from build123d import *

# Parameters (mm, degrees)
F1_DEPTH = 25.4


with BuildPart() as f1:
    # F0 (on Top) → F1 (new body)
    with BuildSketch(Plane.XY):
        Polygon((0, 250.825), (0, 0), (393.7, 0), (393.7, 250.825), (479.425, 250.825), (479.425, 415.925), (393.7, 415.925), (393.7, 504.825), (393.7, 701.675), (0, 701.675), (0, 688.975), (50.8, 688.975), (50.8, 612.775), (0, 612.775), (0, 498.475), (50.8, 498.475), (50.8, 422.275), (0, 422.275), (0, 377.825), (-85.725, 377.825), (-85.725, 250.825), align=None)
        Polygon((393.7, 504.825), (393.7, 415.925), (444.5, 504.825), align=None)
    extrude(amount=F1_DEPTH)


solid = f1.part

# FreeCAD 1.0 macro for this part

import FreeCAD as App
import Part
import Sketcher
from FreeCAD import Vector
Q = App.Units.Quantity


def add_polygon(sketch, points):
    """Adds a closed chain of lines whose ends are joined by coincident constraints."""
    first, n = sketch.GeometryCount, len(points)
    for a, b in zip(points, points[1:] + points[:1]):
        sketch.addGeometry(Part.LineSegment(App.Vector(*a, 0), App.Vector(*b, 0)), False)
    for i in range(n):
        sketch.addConstraint(Sketcher.Constraint("Coincident", first + i, 2, first + (i + 1) % n, 1))

doc = App.newDocument("Part")
params = doc.addObject("Spreadsheet::Sheet", "Params")
for row, (alias, value) in enumerate([
    ("sketch1_width", "2 in"),
    ("sketch1_height", "3 in"),
    ("sketch1_height2", "5 in"),
    ("sketch1_width2", "15.5 in"),
    ("sketch1_height3", "6.5 in"),
    ("pad1_length", "1 in"),
], start=1):
    params.set(f"A{row}", alias)
    params.set(f"B{row}", "=" + value)
    params.setAlias(f"B{row}", alias)

body = doc.addObject("PartDesign::Body", "Body")

# Sketch on XY plane
sketch1 = body.newObject("Sketcher::SketchObject", "Sketch")
sketch1.AttachmentSupport = (doc.getObject("XY_Plane"), [""])
sketch1.MapMode = "FlatFace"
add_polygon(sketch1, [(0, 251), (0, 0), (394, 0), (394, 251), (479, 251), (479, 416), (394, 416), (444, 505), (394, 505), (394, 702), (0, 702), (0, 689), (51, 689), (51, 613), (0, 613), (0, 498), (51, 498), (51, 422), (0, 422), (0, 378), (-86, 378), (-86, 251)])  # lines 0-21
sketch1.addConstraint([
    Sketcher.Constraint("Vertical", 0),
    Sketcher.Constraint("Horizontal", 1),
    Sketcher.Constraint("Vertical", 2),
    Sketcher.Constraint("Horizontal", 3),
    Sketcher.Constraint("Vertical", 4),
    Sketcher.Constraint("Horizontal", 5),
    Sketcher.Constraint("Horizontal", 7),
    Sketcher.Constraint("Vertical", 8),
    Sketcher.Constraint("Horizontal", 9),
    Sketcher.Constraint("Vertical", 10),
    Sketcher.Constraint("Horizontal", 11),
    Sketcher.Constraint("Vertical", 12),
    Sketcher.Constraint("Horizontal", 13),
    Sketcher.Constraint("Vertical", 14),
    Sketcher.Constraint("Horizontal", 15),
    Sketcher.Constraint("Vertical", 16),
    Sketcher.Constraint("Horizontal", 17),
    Sketcher.Constraint("Vertical", 18),
    Sketcher.Constraint("Horizontal", 19),
    Sketcher.Constraint("Vertical", 20),
    Sketcher.Constraint("Horizontal", 21),
    Sketcher.Constraint("Coincident", 0, 2, -1, 1),
    Sketcher.Constraint("PointOnObject", 9, 2, -2),
    Sketcher.Constraint("PointOnObject", 13, 2, -2),
    Sketcher.Constraint("PointOnObject", 17, 2, -2),
    Sketcher.Constraint("Horizontal", 3, 2, 20, 2),
    Sketcher.Constraint("Vertical", 2, 2, 5, 2),
    Sketcher.Constraint("Vertical", 5, 2, 7, 2),
    Sketcher.Constraint("Vertical", 12, 2, 15, 2),
    Sketcher.Constraint("Equal", 7, 11),
    Sketcher.Constraint("Equal", 5, 19),
    Sketcher.Constraint("Equal", 12, 16),
    Sketcher.Constraint("DistanceX", 7, 2, 7, 1, Q("2 in")),
    Sketcher.Constraint("DistanceY", 12, 2, 12, 1, Q("3 in")),
    Sketcher.Constraint("DistanceY", 20, 2, 20, 1, Q("5 in")),
    Sketcher.Constraint("DistanceX", 1, 1, 1, 2, Q("15.5 in")),
    Sketcher.Constraint("DistanceY", 4, 1, 4, 2, Q("6.5 in")),
    Sketcher.Constraint("DistanceY", 10, 2, 10, 1, Q("0.5 in")),
    Sketcher.Constraint("DistanceY", 14, 2, 14, 1, Q("4.5 in")),
    Sketcher.Constraint("DistanceY", 3, 2, 6, 2, Q("10 in")),
    Sketcher.Constraint("DistanceY", 8, 1, 8, 2, Q("7.75 in")),
    Sketcher.Constraint("DistanceX", 3, 1, 3, 2, Q("3.375 in")),
    Sketcher.Constraint("DistanceY", 0, 2, 0, 1, Q("9.875 in")),
])
sketch1.setExpression("Constraints[54]", "Params.sketch1_width")
sketch1.setExpression("Constraints[55]", "Params.sketch1_height")
sketch1.setExpression("Constraints[56]", "Params.sketch1_height2")
sketch1.setExpression("Constraints[57]", "Params.sketch1_width2")
sketch1.setExpression("Constraints[58]", "Params.sketch1_height3")
pad1 = body.newObject("PartDesign::Pad", "Pad")
pad1.Profile = sketch1
pad1.setExpression("Length", "Params.pad1_length")

doc.recompute()
